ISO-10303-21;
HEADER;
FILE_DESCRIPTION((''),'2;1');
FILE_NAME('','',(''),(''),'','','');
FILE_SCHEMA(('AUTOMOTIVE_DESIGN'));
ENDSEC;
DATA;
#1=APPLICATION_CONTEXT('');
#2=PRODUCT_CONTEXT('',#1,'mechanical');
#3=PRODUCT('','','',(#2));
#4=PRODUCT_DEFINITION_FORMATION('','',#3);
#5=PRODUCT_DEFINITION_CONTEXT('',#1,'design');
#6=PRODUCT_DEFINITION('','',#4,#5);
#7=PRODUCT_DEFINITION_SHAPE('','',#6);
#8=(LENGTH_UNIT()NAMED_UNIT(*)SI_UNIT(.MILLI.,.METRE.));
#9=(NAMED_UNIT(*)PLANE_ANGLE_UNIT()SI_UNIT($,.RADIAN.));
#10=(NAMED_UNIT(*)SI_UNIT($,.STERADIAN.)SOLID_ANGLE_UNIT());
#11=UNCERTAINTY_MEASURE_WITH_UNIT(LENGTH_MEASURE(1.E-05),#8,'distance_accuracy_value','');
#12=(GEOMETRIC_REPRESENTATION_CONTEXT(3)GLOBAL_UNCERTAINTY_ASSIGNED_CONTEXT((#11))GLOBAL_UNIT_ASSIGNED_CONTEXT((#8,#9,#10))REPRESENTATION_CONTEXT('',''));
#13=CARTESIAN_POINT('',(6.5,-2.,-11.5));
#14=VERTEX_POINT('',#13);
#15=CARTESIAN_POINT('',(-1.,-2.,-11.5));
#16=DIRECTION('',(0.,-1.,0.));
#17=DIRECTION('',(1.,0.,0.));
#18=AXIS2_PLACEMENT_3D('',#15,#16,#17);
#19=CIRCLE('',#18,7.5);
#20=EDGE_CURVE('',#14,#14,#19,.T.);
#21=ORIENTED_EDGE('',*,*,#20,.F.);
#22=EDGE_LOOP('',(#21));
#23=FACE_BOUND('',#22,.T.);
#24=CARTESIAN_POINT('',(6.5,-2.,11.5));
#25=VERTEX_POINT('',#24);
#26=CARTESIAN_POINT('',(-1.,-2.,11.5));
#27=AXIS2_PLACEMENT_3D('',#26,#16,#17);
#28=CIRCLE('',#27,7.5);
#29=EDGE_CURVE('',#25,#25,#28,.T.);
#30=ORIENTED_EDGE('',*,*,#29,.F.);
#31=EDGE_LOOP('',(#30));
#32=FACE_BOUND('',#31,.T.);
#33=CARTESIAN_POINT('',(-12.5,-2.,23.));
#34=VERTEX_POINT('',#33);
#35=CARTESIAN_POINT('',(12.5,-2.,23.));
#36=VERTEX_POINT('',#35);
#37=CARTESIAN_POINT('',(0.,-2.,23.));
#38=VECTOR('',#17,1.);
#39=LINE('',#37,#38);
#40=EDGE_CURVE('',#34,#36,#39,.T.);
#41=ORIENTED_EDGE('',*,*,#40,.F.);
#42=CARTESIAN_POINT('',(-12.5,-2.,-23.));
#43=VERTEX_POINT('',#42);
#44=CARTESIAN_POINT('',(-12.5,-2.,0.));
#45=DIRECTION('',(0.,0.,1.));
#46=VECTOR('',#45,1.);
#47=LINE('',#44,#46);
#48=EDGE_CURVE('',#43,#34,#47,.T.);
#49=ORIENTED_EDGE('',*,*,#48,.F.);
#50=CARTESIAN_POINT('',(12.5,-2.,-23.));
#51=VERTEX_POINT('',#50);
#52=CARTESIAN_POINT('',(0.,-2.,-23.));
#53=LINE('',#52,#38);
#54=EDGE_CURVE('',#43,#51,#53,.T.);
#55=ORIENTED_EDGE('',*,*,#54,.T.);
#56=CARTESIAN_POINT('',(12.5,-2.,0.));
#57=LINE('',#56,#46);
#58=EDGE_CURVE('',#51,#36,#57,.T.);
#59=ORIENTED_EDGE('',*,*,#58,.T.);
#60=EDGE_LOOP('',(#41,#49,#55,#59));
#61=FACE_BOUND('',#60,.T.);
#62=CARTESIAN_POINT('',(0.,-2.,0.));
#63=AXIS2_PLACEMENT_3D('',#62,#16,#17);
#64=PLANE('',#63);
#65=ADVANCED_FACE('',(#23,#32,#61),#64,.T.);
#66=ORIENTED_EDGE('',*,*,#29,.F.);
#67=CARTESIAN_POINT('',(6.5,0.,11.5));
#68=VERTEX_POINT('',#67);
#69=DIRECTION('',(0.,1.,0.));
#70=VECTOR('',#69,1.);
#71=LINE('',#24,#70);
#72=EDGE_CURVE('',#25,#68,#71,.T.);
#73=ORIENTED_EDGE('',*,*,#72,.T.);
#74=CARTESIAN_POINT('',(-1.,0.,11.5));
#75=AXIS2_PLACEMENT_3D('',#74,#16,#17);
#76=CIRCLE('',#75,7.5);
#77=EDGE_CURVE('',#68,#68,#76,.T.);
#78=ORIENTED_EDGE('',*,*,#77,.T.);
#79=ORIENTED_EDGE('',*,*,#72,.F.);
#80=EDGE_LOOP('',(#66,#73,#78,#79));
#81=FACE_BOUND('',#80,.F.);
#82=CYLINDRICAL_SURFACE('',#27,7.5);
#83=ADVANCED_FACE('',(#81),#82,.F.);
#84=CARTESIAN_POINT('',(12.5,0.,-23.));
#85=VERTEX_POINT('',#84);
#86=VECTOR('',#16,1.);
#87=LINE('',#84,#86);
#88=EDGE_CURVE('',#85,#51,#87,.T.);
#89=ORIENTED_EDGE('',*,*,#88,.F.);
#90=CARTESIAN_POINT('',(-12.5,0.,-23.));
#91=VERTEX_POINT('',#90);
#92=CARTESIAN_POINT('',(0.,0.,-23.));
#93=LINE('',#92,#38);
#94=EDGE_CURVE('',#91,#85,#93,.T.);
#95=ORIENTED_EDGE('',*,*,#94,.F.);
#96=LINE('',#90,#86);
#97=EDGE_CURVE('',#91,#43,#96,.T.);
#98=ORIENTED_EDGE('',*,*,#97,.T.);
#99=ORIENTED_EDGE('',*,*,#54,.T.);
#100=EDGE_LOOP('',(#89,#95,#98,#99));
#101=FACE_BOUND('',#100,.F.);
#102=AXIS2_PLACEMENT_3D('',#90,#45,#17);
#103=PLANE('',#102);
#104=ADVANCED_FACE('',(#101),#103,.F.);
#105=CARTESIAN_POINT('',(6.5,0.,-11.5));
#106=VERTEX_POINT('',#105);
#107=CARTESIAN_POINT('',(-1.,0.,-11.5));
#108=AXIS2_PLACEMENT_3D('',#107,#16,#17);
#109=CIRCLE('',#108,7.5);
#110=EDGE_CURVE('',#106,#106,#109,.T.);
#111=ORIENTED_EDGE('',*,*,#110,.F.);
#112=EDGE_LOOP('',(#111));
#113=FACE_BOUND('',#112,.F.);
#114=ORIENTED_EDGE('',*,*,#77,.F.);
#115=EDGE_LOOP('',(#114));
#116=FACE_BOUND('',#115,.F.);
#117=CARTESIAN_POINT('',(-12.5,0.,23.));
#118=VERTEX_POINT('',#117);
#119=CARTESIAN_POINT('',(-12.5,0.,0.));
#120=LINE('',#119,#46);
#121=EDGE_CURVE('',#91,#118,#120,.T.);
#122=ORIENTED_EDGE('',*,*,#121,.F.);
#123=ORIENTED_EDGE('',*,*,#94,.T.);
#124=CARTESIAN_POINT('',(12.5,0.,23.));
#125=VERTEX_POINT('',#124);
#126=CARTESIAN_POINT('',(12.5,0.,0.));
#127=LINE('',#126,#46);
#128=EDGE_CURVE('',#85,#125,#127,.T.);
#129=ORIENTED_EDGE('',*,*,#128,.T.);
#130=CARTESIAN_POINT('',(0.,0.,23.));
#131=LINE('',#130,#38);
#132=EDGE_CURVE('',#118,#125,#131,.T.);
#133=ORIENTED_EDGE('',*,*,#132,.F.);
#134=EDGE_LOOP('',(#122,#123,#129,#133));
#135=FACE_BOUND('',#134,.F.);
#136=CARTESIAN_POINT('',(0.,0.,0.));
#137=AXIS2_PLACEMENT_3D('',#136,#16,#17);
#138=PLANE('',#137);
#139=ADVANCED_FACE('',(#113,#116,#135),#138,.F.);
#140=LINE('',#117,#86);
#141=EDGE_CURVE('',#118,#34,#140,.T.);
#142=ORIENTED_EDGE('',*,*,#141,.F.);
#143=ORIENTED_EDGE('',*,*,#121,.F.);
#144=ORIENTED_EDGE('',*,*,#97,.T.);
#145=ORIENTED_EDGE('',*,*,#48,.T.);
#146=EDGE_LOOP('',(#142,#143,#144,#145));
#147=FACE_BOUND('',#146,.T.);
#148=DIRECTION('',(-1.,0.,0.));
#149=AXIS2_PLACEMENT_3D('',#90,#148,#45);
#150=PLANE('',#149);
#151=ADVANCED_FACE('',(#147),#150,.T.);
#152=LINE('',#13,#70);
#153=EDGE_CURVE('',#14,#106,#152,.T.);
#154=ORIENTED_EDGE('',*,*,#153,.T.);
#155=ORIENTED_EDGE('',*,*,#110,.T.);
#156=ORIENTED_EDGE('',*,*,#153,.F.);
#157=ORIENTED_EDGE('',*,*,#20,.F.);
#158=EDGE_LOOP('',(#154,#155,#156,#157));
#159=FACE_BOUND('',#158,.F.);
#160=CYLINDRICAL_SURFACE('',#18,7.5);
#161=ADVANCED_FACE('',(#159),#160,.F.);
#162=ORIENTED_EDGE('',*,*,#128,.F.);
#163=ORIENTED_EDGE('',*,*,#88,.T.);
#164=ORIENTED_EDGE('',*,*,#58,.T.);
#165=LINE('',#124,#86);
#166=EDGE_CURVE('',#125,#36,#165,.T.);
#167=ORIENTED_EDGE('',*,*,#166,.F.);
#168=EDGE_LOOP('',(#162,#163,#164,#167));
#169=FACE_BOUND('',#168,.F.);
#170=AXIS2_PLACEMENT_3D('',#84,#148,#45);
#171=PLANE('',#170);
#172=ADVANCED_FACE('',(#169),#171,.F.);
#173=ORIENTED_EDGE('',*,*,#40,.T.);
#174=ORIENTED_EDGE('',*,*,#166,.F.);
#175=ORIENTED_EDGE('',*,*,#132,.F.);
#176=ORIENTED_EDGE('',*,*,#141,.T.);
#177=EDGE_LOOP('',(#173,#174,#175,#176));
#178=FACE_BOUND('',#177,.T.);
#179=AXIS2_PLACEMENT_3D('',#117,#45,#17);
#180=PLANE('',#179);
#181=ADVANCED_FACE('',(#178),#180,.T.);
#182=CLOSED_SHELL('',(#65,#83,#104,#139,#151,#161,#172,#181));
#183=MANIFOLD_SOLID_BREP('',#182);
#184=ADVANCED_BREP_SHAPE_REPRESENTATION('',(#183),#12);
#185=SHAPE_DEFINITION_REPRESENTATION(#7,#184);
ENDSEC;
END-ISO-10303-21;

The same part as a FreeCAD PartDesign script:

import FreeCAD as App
import Part
import Sketcher

V = App.Vector
Q = App.Units.Quantity


def add_polygon(sketch, points):
    """Adds a closed chain of lines whose ends are joined by coincident constraints."""
    first, n = sketch.GeometryCount, len(points)
    for a, b in zip(points, points[1:] + points[:1]):
        sketch.addGeometry(Part.LineSegment(App.Vector(*a, 0), App.Vector(*b, 0)), False)
    for i in range(n):
        sketch.addConstraint(Sketcher.Constraint("Coincident", first + i, 2, first + (i + 1) % n, 1))

doc = App.newDocument("Part")
params = doc.addObject("Spreadsheet::Sheet", "Params")
for row, (alias, value) in enumerate([
    ("sketch1_width", "25 mm"),
    ("sketch1_height", "46 mm"),
    ("pad1_length", "2 mm"),
    ("sketch2_diameter", "15 mm"),
    ("pocket1_length", "5 mm"),
], start=1):
    params.set(f"A{row}", alias)
    params.set(f"B{row}", "=" + value)
    params.setAlias(f"B{row}", alias)

body = doc.addObject("PartDesign::Body", "Body")

# Sketch on XZ plane
sketch1 = body.newObject("Sketcher::SketchObject", "Sketch")
sketch1.AttachmentSupport = (doc.getObject("XZ_Plane"), [""])
sketch1.MapMode = "FlatFace"
add_polygon(sketch1, [(-12.5, 23), (-12.5, -23), (12.5, -23), (12.5, 23)])  # lines 0-3
sketch1.addConstraint([
    Sketcher.Constraint("Vertical", 0),
    Sketcher.Constraint("Horizontal", 1),
    Sketcher.Constraint("Vertical", 2),
    Sketcher.Constraint("Horizontal", 3),
    Sketcher.Constraint("Symmetric", 0, 2, 2, 2, -1, 1),
    Sketcher.Constraint("DistanceX", 1, 1, 1, 2, Q("25 mm")),
    Sketcher.Constraint("DistanceY", 0, 2, 0, 1, Q("46 mm")),
])
sketch1.setExpression("Constraints[9]", "Params.sketch1_width")
sketch1.setExpression("Constraints[10]", "Params.sketch1_height")
pad1 = body.newObject("PartDesign::Pad", "Pad")
pad1.Profile = sketch1
pad1.setExpression("Length", "Params.pad1_length")

# Sketch on XZ plane
sketch2 = body.newObject("Sketcher::SketchObject", "Sketch001")
sketch2.AttachmentSupport = (doc.getObject("XZ_Plane"), [""])
sketch2.MapMode = "FlatFace"
sketch2.AttachmentOffset = App.Placement(V(0, 0, 2), App.Rotation())
sketch2.addGeometry([
    Part.Circle(V(-1, 11.5, 0), V(0, 0, 1), 7.5),
    Part.Circle(V(-1, -11.5, 0), V(0, 0, 1), 7.5),
], False)
sketch2.addConstraint([
    Sketcher.Constraint("Equal", 0, 1),
    Sketcher.Constraint("Symmetric", 0, 3, 1, 3, -1),
    Sketcher.Constraint("Diameter", 0, Q("15 mm")),
    Sketcher.Constraint("DistanceX", 0, 3, -1, 1, Q("1 mm")),
    Sketcher.Constraint("DistanceY", 1, 3, 0, 3, Q("23 mm")),
])
sketch2.setExpression("Constraints[2]", "Params.sketch2_diameter")
pocket1 = body.newObject("PartDesign::Pocket", "Pocket")
pocket1.Profile = sketch2
pocket1.setExpression("Length", "Params.pocket1_length")

doc.recompute()
